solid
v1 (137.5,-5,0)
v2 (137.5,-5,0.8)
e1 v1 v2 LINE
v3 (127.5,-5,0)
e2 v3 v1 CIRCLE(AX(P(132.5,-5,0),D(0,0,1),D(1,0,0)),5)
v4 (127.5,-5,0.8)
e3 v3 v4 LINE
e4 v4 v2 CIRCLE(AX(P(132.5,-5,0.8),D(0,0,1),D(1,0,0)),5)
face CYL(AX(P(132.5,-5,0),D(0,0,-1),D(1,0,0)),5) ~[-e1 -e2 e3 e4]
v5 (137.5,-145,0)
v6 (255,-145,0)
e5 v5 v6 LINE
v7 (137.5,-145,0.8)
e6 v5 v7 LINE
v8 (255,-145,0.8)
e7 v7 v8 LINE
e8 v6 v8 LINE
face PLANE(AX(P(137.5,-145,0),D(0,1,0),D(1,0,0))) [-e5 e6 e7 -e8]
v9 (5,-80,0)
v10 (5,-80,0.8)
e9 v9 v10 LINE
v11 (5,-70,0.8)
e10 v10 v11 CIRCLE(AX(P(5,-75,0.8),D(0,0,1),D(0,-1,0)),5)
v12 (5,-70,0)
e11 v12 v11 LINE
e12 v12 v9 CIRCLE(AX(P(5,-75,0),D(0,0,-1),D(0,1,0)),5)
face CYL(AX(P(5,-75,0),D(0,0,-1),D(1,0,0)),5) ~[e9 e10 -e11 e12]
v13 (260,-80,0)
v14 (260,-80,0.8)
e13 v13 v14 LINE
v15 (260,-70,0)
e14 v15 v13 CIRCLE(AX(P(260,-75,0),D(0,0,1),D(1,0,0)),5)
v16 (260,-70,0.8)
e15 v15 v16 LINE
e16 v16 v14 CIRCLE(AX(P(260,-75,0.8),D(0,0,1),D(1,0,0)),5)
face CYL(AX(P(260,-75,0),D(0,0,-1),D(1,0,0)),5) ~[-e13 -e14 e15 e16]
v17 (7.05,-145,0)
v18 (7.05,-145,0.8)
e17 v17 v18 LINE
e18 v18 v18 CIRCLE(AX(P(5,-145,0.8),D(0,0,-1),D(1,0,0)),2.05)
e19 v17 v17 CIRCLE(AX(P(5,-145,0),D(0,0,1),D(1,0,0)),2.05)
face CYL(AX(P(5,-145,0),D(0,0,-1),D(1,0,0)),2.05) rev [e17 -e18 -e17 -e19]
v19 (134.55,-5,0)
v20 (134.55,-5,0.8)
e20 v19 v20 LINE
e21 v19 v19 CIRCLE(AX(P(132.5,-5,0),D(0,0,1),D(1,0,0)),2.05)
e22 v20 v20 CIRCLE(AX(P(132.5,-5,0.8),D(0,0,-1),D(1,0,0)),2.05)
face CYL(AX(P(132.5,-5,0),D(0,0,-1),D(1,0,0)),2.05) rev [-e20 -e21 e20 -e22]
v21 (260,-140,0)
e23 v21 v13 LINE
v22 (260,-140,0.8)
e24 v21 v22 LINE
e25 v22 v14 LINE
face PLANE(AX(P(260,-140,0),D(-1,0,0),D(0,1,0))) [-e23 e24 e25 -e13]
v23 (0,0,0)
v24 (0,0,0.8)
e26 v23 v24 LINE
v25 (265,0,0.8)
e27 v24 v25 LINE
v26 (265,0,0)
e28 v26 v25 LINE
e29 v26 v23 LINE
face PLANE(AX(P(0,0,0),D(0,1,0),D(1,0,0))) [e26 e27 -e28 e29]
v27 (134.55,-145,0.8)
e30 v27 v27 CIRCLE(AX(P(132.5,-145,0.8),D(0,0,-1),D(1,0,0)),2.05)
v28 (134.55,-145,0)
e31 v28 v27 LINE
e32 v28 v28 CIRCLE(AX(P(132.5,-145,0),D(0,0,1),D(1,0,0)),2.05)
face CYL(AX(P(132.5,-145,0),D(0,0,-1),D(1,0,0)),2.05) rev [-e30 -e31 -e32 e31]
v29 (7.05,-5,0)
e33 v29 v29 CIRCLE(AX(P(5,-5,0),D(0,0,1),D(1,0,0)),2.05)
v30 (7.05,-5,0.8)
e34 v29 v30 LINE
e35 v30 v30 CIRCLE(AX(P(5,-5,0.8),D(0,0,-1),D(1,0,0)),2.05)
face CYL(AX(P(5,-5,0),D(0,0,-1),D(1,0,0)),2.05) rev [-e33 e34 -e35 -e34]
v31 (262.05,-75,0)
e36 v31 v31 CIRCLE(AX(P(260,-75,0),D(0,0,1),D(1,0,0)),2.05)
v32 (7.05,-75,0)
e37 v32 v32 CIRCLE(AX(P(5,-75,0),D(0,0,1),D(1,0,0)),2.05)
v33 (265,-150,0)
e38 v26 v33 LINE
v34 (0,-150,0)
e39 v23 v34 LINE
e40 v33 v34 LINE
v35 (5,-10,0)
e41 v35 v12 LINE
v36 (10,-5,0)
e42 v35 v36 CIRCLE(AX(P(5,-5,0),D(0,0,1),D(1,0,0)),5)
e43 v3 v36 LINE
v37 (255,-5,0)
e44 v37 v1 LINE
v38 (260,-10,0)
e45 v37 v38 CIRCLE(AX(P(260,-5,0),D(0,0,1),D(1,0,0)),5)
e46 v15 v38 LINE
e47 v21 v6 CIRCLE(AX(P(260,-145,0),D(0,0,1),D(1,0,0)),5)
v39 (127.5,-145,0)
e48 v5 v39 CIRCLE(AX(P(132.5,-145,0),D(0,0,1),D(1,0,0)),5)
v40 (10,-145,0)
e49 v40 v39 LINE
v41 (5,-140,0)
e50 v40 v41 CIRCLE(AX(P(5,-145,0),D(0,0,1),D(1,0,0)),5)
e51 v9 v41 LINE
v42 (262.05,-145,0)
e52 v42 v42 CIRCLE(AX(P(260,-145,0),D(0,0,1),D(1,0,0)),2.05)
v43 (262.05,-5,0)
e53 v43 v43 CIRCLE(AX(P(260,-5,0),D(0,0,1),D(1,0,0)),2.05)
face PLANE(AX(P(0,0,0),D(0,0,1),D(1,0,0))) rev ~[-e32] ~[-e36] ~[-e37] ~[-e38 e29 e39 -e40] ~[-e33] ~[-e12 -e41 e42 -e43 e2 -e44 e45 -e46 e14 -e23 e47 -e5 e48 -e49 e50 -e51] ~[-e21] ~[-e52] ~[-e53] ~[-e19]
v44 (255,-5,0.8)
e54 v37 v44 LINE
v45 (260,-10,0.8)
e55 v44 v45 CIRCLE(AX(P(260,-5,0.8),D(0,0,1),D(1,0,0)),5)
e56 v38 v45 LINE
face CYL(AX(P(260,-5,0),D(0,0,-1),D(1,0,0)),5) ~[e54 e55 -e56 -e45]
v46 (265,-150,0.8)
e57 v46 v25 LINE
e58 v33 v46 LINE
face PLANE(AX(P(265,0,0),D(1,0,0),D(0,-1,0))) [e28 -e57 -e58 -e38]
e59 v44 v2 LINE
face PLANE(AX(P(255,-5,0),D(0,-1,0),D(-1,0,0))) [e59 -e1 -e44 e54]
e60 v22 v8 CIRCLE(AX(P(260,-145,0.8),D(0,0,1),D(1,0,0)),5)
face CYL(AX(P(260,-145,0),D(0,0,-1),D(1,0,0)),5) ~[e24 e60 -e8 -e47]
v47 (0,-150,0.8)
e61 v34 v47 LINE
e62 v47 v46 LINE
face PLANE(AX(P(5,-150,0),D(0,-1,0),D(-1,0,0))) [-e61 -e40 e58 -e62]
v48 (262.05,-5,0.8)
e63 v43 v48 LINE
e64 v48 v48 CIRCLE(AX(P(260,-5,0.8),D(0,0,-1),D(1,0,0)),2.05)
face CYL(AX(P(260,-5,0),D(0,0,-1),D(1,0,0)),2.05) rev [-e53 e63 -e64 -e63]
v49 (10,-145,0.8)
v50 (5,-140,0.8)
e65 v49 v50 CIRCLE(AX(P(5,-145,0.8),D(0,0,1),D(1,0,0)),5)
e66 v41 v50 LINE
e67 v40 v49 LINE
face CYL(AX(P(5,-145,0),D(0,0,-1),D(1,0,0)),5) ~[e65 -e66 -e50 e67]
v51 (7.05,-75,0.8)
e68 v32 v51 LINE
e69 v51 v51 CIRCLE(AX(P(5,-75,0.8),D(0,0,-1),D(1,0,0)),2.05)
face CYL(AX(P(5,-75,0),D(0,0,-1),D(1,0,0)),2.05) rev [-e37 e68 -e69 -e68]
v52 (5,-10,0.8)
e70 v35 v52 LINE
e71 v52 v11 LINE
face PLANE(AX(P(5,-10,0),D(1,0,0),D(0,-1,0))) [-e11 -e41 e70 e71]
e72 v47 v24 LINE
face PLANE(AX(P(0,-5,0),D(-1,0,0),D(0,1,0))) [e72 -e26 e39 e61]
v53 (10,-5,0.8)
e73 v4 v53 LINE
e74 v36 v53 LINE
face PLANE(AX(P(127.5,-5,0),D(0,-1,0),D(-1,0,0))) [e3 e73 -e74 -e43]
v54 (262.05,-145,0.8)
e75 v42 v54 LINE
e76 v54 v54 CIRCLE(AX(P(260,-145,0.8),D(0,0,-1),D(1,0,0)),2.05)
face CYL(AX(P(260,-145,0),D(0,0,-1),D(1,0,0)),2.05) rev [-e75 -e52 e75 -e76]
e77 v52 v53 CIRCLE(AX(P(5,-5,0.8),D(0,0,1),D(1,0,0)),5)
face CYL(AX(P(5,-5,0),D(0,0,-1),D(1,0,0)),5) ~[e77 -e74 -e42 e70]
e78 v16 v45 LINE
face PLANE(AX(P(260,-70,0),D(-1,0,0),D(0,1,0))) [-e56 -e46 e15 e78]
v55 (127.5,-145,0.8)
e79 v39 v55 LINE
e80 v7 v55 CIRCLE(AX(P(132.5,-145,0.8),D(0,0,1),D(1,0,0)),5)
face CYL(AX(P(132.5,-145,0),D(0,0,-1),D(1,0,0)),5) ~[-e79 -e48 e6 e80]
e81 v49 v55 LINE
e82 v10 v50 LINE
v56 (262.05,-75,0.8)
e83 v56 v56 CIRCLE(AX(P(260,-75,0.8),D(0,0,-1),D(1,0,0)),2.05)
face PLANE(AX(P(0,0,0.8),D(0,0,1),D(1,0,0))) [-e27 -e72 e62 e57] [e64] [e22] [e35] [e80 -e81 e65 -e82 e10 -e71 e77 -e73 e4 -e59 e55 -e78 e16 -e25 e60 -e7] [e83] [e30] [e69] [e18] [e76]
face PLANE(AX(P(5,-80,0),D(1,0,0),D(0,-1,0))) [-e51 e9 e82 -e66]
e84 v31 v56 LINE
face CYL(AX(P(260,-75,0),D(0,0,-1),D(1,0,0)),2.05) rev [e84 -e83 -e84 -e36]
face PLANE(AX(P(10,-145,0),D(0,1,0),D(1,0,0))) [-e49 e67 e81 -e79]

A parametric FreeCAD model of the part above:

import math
import FreeCAD as App
import Part
import Sketcher
from FreeCAD import Vector
Q = App.Units.Quantity


def add_polygon(sketch, points):
    """Adds a closed chain of lines whose ends are joined by coincident constraints."""
    first, n = sketch.GeometryCount, len(points)
    for a, b in zip(points, points[1:] + points[:1]):
        sketch.addGeometry(Part.LineSegment(App.Vector(*a, 0), App.Vector(*b, 0)), False)
    for i in range(n):
        sketch.addConstraint(Sketcher.Constraint("Coincident", first + i, 2, first + (i + 1) % n, 1))

doc = App.newDocument("Part")
body = doc.addObject("PartDesign::Body", "Body")

# Sketch on XY plane
sketch1 = doc.addObject("Sketcher::SketchObject", "Sketch")
body.addObject(sketch1)
sketch1.AttachmentSupport = (doc.XY_Plane, [""])
sketch1.MapMode = "FlatFace"
add_polygon(sketch1, [(0, 0), (0, -150), (265, -150), (265, 0)])  # lines 0-3
sketch1.addGeometry(Part.Circle(Vector(5, -5, 0), Vector(0, 0, 1), 2), False)  # 4
sketch1.addGeometry(Part.LineSegment(Vector(10, -5, 0), Vector(127.5, -5, 0)), False)  # 5
sketch1.addGeometry(Part.ArcOfCircle(Part.Circle(Vector(132.5, -5, 0), Vector(0, 0, 1), 5), math.radians(180), math.radians(360)), False)  # 6
sketch1.addGeometry(Part.LineSegment(Vector(137.5, -5, 0), Vector(255, -5, 0)), False)  # 7
sketch1.addGeometry(Part.ArcOfCircle(Part.Circle(Vector(260, -5, 0), Vector(0, 0, 1), 5), math.radians(180), math.radians(270)), False)  # 8
sketch1.addGeometry(Part.LineSegment(Vector(260, -10, 0), Vector(260, -70, 0)), False)  # 9
sketch1.addGeometry(Part.ArcOfCircle(Part.Circle(Vector(260, -75, 0), Vector(0, 0, 1), 5), math.radians(90), math.radians(270)), False)  # 10
sketch1.addGeometry(Part.LineSegment(Vector(260, -80, 0), Vector(260, -140, 0)), False)  # 11
sketch1.addGeometry(Part.ArcOfCircle(Part.Circle(Vector(260, -145, 0), Vector(0, 0, 1), 5), math.radians(90), math.radians(180)), False)  # 12
sketch1.addGeometry(Part.LineSegment(Vector(255, -145, 0), Vector(137.5, -145, 0)), False)  # 13
sketch1.addGeometry(Part.ArcOfCircle(Part.Circle(Vector(132.5, -145, 0), Vector(0, 0, 1), 5), math.radians(0), math.radians(180)), False)  # 14
sketch1.addGeometry(Part.LineSegment(Vector(127.5, -145, 0), Vector(10, -145, 0)), False)  # 15
sketch1.addGeometry(Part.ArcOfCircle(Part.Circle(Vector(5, -145, 0), Vector(0, 0, 1), 5), math.radians(0), math.radians(90)), False)  # 16
sketch1.addGeometry(Part.LineSegment(Vector(5, -140, 0), Vector(5, -80, 0)), False)  # 17
sketch1.addGeometry(Part.ArcOfCircle(Part.Circle(Vector(5, -75, 0), Vector(0, 0, 1), 5), math.radians(-90), math.radians(90)), False)  # 18
sketch1.addGeometry(Part.LineSegment(Vector(5, -70, 0), Vector(5, -10, 0)), False)  # 19
sketch1.addGeometry(Part.ArcOfCircle(Part.Circle(Vector(5, -5, 0), Vector(0, 0, 1), 5), math.radians(-90), math.radians(0)), False)  # 20
sketch1.addGeometry(Part.Circle(Vector(132.5, -5, 0), Vector(0, 0, 1), 2), False)  # 21
sketch1.addGeometry(Part.Circle(Vector(5, -75, 0), Vector(0, 0, 1), 2), False)  # 22
sketch1.addGeometry(Part.Circle(Vector(260, -5, 0), Vector(0, 0, 1), 2), False)  # 23
sketch1.addGeometry(Part.Circle(Vector(5, -145, 0), Vector(0, 0, 1), 2), False)  # 24
sketch1.addGeometry(Part.Circle(Vector(260, -75, 0), Vector(0, 0, 1), 2), False)  # 25
sketch1.addGeometry(Part.Circle(Vector(132.5, -145, 0), Vector(0, 0, 1), 2), False)  # 26
sketch1.addGeometry(Part.Circle(Vector(260, -145, 0), Vector(0, 0, 1), 2), False)  # 27
sketch1.addConstraint([
    Sketcher.Constraint("Coincident", 5, 2, 6, 1),
    Sketcher.Constraint("Coincident", 6, 2, 7, 1),
    Sketcher.Constraint("Coincident", 7, 2, 8, 1),
    Sketcher.Constraint("Coincident", 8, 2, 9, 1),
    Sketcher.Constraint("Coincident", 9, 2, 10, 1),
    Sketcher.Constraint("Coincident", 10, 2, 11, 1),
    Sketcher.Constraint("Coincident", 11, 2, 12, 1),
    Sketcher.Constraint("Coincident", 12, 2, 13, 1),
    Sketcher.Constraint("Coincident", 13, 2, 14, 1),
    Sketcher.Constraint("Coincident", 14, 2, 15, 1),
    Sketcher.Constraint("Coincident", 15, 2, 16, 1),
    Sketcher.Constraint("Coincident", 16, 2, 17, 1),
    Sketcher.Constraint("Coincident", 17, 2, 18, 1),
    Sketcher.Constraint("Coincident", 18, 2, 19, 1),
    Sketcher.Constraint("Coincident", 19, 2, 20, 1),
    Sketcher.Constraint("Coincident", 20, 2, 5, 1),
    Sketcher.Constraint("Vertical", 0),
    Sketcher.Constraint("Horizontal", 1),
    Sketcher.Constraint("Vertical", 2),
    Sketcher.Constraint("Horizontal", 3),
    Sketcher.Constraint("Horizontal", 5),
    Sketcher.Constraint("Horizontal", 7),
    Sketcher.Constraint("Vertical", 9),
    Sketcher.Constraint("Vertical", 11),
    Sketcher.Constraint("Horizontal", 13),
    Sketcher.Constraint("Horizontal", 15),
    Sketcher.Constraint("Vertical", 17),
    Sketcher.Constraint("Vertical", 19),
    Sketcher.Constraint("Coincident", 3, 2, -1, 1),
    Sketcher.Constraint("Coincident", 20, 3, 4, 3),
    Sketcher.Constraint("Coincident", 21, 3, 6, 3),
    Sketcher.Constraint("Coincident", 22, 3, 18, 3),
    Sketcher.Constraint("Coincident", 23, 3, 8, 3),
    Sketcher.Constraint("Coincident", 24, 3, 16, 3),
    Sketcher.Constraint("Coincident", 25, 3, 10, 3),
    Sketcher.Constraint("Coincident", 26, 3, 14, 3),
    Sketcher.Constraint("Coincident", 27, 3, 12, 3),
    Sketcher.Constraint("Equal", 6, 8),
    Sketcher.Constraint("Equal", 8, 10),
    Sketcher.Constraint("Equal", 10, 12),
    Sketcher.Constraint("Equal", 12, 14),
    Sketcher.Constraint("Equal", 14, 16),
    Sketcher.Constraint("Equal", 16, 18),
    Sketcher.Constraint("Equal", 18, 20),
    Sketcher.Constraint("Equal", 4, 21),
    Sketcher.Constraint("Equal", 21, 22),
    Sketcher.Constraint("Equal", 22, 23),
    Sketcher.Constraint("Equal", 23, 24),
    Sketcher.Constraint("Equal", 24, 25),
    Sketcher.Constraint("Equal", 25, 26),
    Sketcher.Constraint("Equal", 26, 27),
    Sketcher.Constraint("Horizontal", 4, 3, 6, 3),
    Sketcher.Constraint("Horizontal", 6, 3, 8, 3),
    Sketcher.Constraint("Horizontal", 12, 3, 14, 3),
    Sketcher.Constraint("Horizontal", 14, 3, 16, 3),
    Sketcher.Constraint("Horizontal", 10, 3, 18, 3),
    Sketcher.Constraint("Horizontal", 23, 3, 5, 2),
    Sketcher.Constraint("Horizontal", 5, 2, 6, 2),
    Sketcher.Constraint("Horizontal", 27, 3, 12, 2),
    Sketcher.Constraint("Horizontal", 13, 2, 14, 2),
    Sketcher.Constraint("Vertical", 8, 3, 10, 3),
    Sketcher.Constraint("Vertical", 10, 3, 12, 3),
    Sketcher.Constraint("Vertical", 6, 3, 14, 3),
    Sketcher.Constraint("Vertical", 4, 3, 16, 3),
    Sketcher.Constraint("Vertical", 16, 3, 18, 3),
    Sketcher.Constraint("Vertical", 27, 3, 8, 2),
    Sketcher.Constraint("Vertical", 9, 2, 10, 2),
    Sketcher.Constraint("Vertical", 24, 3, 16, 2),
    Sketcher.Constraint("Vertical", 17, 2, 18, 2),
    Sketcher.Constraint("Equal", 5, 7),
    Sketcher.Constraint("Equal", 9, 11),
    Sketcher.Constraint("Radius", 6, Q("5 mm")),
    Sketcher.Constraint("Diameter", 4, Q("4.1 mm")),
    Sketcher.Constraint("DistanceX", 1, 1, 1, 2, Q("265 mm")),
    Sketcher.Constraint("DistanceY", 0, 2, 0, 1, Q("150 mm")),
    Sketcher.Constraint("DistanceX", -1, 1, 4, 3, Q("5 mm")),
    Sketcher.Constraint("DistanceY", 4, 3, -1, 1, Q("5 mm")),
    Sketcher.Constraint("DistanceY", 9, 2, -1, 1, Q("70 mm")),
    Sketcher.Constraint("DistanceX", 12, 3, 1, 2, Q("5 mm")),
])
pad1 = doc.addObject("PartDesign::Pad", "Pad")
body.addObject(pad1)
pad1.Profile = sketch1
pad1.Length = 0.8

doc.recompute()
